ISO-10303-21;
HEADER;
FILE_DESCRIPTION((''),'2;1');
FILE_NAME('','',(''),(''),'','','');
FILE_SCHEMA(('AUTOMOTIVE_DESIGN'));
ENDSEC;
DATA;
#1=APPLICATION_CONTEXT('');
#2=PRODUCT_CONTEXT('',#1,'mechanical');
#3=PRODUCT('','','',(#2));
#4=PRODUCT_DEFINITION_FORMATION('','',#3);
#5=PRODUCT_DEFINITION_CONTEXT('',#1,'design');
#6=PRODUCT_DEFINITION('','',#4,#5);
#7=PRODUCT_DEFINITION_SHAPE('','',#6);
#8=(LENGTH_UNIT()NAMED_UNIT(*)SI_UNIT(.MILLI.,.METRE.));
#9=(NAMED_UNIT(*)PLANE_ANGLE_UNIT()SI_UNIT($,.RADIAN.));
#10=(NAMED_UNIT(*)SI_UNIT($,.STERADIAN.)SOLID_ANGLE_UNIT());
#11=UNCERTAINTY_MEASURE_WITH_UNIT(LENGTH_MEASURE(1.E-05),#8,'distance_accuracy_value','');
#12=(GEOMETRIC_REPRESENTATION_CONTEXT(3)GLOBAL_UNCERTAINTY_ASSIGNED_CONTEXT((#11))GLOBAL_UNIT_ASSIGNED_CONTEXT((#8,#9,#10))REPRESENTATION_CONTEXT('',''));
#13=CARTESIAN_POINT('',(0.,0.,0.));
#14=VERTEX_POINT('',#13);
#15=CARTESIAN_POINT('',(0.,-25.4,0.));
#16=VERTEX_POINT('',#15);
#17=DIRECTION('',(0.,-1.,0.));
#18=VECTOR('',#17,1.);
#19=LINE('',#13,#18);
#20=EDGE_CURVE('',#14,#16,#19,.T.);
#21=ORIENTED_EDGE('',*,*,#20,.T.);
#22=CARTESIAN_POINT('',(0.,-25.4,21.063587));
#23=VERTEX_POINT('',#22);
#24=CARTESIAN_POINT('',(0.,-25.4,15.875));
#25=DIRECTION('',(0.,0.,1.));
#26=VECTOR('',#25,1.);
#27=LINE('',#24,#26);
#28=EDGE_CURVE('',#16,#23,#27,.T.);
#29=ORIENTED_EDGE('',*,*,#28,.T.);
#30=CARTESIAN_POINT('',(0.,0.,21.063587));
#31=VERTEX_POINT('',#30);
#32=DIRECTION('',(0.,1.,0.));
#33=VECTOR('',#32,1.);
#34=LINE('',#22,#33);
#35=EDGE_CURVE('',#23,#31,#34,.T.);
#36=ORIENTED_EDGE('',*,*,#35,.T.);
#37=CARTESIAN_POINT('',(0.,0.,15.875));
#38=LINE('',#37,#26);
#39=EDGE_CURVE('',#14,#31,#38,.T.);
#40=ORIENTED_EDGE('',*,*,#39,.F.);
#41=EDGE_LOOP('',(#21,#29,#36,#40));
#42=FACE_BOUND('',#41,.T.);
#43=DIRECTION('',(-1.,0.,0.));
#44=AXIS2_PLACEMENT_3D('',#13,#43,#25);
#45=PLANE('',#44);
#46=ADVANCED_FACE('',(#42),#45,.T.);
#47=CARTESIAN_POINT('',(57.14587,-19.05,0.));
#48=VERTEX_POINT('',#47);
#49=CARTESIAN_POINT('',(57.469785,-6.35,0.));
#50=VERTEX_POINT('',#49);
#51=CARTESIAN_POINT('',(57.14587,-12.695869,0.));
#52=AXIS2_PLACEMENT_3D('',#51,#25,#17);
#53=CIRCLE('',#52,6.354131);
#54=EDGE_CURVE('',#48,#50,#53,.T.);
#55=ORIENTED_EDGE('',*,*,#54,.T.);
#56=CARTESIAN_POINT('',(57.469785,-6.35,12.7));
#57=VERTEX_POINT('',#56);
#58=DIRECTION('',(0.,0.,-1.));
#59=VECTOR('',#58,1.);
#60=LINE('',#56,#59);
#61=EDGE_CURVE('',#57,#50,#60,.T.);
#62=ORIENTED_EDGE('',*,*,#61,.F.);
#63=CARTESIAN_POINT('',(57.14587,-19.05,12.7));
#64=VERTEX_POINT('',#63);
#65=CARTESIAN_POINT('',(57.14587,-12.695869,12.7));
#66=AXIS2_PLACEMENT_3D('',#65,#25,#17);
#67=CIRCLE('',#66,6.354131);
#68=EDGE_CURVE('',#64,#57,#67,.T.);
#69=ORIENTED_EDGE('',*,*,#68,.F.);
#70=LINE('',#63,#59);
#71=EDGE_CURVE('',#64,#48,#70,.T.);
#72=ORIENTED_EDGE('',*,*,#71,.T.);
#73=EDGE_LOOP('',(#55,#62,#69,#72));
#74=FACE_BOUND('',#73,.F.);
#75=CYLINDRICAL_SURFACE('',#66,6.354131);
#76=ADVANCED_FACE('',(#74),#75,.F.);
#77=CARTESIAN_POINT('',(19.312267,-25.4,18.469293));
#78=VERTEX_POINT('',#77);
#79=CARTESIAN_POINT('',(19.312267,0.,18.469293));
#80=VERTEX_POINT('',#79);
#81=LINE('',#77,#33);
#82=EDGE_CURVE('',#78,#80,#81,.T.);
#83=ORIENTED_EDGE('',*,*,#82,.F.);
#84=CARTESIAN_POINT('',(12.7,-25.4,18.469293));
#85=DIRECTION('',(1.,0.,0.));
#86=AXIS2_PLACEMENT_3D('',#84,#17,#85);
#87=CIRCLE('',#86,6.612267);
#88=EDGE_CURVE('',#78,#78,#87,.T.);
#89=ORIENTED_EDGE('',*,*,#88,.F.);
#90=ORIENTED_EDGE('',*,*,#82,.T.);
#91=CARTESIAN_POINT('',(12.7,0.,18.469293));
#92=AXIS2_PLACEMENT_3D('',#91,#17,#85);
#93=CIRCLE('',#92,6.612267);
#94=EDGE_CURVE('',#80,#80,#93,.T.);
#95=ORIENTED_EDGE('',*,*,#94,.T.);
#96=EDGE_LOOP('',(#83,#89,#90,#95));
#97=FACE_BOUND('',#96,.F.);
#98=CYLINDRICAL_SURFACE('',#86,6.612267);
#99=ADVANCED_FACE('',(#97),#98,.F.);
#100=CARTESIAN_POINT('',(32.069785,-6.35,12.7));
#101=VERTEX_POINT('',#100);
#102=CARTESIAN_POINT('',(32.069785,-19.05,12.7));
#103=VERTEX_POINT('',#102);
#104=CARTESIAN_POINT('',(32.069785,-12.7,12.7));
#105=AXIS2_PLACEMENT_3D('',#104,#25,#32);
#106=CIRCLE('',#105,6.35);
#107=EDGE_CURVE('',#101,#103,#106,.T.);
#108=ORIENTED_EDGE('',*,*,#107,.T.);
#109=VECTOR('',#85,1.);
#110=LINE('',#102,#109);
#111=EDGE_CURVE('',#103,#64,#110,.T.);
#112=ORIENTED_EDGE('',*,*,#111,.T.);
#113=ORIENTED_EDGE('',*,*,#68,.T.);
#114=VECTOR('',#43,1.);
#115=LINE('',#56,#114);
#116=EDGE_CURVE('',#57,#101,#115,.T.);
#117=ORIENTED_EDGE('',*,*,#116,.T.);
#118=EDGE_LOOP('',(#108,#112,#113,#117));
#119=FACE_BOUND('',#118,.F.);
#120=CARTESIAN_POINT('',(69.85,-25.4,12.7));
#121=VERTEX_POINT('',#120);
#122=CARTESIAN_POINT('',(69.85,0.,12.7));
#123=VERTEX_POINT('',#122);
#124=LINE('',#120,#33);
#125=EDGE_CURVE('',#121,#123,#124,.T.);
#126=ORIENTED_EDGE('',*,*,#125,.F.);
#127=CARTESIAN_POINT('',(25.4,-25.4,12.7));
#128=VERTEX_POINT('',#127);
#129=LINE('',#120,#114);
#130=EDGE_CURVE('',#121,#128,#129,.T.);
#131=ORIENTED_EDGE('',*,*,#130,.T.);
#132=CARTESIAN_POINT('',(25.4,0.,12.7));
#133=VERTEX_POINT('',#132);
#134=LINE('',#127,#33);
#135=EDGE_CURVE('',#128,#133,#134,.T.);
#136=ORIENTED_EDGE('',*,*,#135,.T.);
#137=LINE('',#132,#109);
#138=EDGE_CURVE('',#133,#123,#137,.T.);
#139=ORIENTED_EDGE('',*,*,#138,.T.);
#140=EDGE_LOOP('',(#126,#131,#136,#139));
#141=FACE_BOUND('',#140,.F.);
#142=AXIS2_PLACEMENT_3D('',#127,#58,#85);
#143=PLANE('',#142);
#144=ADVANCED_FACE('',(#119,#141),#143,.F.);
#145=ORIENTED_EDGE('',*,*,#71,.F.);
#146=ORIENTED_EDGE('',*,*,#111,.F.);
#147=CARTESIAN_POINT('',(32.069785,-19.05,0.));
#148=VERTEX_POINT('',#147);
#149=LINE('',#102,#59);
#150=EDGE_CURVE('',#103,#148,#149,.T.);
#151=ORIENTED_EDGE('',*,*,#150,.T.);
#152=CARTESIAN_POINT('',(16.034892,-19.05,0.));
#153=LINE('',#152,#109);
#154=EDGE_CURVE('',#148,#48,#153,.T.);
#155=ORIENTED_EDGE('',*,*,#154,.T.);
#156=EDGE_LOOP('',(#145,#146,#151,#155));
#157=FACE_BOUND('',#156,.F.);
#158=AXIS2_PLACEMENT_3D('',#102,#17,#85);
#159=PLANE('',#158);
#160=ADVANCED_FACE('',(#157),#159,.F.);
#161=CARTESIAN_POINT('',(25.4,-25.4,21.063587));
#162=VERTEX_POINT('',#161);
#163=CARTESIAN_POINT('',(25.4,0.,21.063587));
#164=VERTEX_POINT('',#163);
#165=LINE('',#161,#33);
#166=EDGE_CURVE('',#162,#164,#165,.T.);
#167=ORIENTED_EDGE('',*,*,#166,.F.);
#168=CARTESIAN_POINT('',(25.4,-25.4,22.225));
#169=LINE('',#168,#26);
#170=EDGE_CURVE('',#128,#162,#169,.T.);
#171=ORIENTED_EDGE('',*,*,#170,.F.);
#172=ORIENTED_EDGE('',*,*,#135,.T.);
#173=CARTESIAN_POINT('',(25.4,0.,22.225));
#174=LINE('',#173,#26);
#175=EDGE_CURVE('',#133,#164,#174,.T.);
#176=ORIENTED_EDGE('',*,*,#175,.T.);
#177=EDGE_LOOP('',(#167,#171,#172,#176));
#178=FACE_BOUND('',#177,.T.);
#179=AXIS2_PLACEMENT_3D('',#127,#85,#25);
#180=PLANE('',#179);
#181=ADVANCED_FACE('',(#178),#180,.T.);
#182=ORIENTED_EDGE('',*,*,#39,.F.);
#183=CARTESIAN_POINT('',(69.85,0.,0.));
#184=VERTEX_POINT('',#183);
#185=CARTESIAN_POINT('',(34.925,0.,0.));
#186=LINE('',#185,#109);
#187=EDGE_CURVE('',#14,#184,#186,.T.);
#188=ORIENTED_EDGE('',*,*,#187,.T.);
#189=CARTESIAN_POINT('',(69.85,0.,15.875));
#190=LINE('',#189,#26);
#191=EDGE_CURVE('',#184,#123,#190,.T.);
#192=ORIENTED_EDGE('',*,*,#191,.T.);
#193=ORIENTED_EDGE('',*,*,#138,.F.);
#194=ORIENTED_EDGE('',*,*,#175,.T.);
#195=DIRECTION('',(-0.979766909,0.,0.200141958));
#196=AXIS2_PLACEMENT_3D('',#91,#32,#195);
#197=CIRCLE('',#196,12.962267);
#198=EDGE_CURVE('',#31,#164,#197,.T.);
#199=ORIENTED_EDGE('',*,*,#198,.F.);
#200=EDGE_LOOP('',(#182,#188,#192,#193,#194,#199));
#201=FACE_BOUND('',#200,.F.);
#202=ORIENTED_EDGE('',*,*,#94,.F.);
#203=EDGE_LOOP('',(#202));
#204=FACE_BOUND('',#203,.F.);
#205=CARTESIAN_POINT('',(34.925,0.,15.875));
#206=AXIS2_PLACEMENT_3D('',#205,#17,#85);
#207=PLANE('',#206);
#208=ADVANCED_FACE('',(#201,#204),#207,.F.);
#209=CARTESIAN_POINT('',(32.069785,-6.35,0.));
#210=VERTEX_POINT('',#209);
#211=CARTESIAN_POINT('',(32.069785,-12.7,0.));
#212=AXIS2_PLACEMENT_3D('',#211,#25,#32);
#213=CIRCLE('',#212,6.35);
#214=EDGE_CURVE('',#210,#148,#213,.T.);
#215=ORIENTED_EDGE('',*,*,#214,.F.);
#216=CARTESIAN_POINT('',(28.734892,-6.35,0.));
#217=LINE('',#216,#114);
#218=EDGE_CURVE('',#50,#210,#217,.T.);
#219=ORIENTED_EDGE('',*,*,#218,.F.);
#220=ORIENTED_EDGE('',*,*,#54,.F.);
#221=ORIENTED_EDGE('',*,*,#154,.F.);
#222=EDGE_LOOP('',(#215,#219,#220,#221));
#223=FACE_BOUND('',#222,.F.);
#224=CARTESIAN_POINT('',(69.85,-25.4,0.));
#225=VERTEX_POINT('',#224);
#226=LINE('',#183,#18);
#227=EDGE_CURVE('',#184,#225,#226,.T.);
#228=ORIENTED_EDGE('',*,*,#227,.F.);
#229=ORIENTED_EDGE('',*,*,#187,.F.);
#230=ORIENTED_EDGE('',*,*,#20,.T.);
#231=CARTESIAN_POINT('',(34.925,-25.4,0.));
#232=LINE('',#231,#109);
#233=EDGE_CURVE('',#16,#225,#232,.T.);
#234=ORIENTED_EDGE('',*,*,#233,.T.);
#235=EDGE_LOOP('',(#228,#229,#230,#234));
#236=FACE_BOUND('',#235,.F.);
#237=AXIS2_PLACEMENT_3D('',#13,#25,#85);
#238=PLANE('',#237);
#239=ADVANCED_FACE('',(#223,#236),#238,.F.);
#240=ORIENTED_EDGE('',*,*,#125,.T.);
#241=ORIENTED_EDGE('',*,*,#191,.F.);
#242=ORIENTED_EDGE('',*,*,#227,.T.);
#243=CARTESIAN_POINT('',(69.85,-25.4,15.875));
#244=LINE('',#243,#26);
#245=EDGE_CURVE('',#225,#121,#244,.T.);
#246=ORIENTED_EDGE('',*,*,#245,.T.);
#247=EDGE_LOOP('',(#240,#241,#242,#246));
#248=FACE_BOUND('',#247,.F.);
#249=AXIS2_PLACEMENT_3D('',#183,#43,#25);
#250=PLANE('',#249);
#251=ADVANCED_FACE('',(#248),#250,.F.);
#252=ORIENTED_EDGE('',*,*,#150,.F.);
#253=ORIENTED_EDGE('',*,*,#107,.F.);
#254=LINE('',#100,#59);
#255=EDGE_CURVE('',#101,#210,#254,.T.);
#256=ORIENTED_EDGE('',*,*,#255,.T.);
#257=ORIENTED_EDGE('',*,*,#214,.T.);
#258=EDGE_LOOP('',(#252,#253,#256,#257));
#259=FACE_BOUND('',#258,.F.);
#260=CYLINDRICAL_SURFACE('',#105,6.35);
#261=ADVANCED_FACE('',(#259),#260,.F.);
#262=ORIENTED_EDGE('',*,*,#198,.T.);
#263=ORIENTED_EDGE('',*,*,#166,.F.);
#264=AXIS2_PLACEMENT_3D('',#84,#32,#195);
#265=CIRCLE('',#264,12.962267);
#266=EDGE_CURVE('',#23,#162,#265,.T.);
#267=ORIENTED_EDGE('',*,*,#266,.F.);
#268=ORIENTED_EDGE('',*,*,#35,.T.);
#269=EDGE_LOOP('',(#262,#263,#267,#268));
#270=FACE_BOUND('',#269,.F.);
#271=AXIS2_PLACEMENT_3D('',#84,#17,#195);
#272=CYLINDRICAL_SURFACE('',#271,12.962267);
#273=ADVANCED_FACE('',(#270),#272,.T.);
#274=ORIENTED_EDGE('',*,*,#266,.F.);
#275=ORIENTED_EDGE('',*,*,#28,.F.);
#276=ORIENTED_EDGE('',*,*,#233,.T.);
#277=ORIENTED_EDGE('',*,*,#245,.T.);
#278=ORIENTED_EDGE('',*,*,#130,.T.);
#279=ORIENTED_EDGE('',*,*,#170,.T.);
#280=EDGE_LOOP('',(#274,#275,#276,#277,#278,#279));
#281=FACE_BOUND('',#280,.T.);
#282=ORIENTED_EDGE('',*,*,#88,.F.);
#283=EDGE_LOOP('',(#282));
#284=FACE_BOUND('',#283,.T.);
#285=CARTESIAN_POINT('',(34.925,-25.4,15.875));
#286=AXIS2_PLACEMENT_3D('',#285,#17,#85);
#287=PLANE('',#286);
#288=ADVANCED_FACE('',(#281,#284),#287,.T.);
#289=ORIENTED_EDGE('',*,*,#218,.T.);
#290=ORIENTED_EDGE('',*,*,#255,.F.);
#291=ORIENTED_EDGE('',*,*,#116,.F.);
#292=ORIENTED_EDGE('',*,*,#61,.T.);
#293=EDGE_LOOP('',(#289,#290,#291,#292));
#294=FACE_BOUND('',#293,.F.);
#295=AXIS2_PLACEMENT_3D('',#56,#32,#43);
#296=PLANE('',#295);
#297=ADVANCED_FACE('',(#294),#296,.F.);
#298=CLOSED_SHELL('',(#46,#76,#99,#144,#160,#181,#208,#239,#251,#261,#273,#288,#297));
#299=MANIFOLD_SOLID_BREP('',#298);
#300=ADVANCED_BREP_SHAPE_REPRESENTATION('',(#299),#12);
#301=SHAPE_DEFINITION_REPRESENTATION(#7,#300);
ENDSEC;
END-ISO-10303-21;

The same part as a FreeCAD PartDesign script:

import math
import FreeCAD as App
import Part
import Sketcher
from FreeCAD import Vector
Q = App.Units.Quantity


def add_polygon(sketch, points):
    """Adds a closed chain of lines whose ends are joined by coincident constraints."""
    first, n = sketch.GeometryCount, len(points)
    for a, b in zip(points, points[1:] + points[:1]):
        sketch.addGeometry(Part.LineSegment(App.Vector(*a, 0), App.Vector(*b, 0)), False)
    for i in range(n):
        sketch.addConstraint(Sketcher.Constraint("Coincident", first + i, 2, first + (i + 1) % n, 1))

doc = App.newDocument("Part")
params = doc.addObject("Spreadsheet::Sheet", "Params")
for row, (alias, value) in enumerate([
    ("sketch1_width", "2.75 in"),
    ("sketch1_height", "1.25 in"),
    ("pad1_length", "1 in"),
    ("sketch2_width", "1.75 in"),
    ("sketch2_height", "0.75 in"),
    ("pocket1_length", "1 in"),
    ("sketch3_width", "1 in"),
    ("pocket2_length", "1 in"),
    ("pocket3_length", "1 in"),
    ("sketch5_width", "1 in"),
    ("sketch5_radius", "0.25 in"),
    ("pocket4_length", "1 in"),
    ("sketch6_height", "1 in"),
    ("pocket5_length", "1 in"),
], start=1):
    params.set(f"A{row}", alias)
    params.set(f"B{row}", "=" + value)
    params.setAlias(f"B{row}", alias)

body = doc.addObject("PartDesign::Body", "Body")

sketch1 = body.newObject("Sketcher::SketchObject", "Sketch")
sketch1.AttachmentSupport = (doc.getObject("XZ_Plane"), [""])
sketch1.MapMode = "FlatFace"
add_polygon(sketch1, [(0, 32), (0, 0), (70, 0), (70, 32)])
sketch1.addConstraint([
    Sketcher.Constraint("Vertical", 0),
    Sketcher.Constraint("Horizontal", 1),
    Sketcher.Constraint("Vertical", 2),
    Sketcher.Constraint("Horizontal", 3),
    Sketcher.Constraint("Coincident", 0, 2, -1, 1),
    Sketcher.Constraint("DistanceX", 1, 1, 1, 2, Q("2.75 in")),
    Sketcher.Constraint("DistanceY", 0, 2, 0, 1, Q("1.25 in")),
])
sketch1.setExpression("Constraints[9]", "Params.sketch1_width")
sketch1.setExpression("Constraints[10]", "Params.sketch1_height")
pad1 = body.newObject("PartDesign::Pad", "Pad")
pad1.Profile = sketch1
pad1.setExpression("Length", "Params.pad1_length")

sketch2 = body.newObject("Sketcher::SketchObject", "Sketch001")
sketch2.AttachmentSupport = (doc.getObject("XZ_Plane"), [""])
sketch2.MapMode = "FlatFace"
sketch2.AttachmentOffset = App.Placement(Vector(0, 0, 1 * 25.4), App.Rotation())
add_polygon(sketch2, [(25, 32), (25, 13), (70, 13), (70, 32)])
sketch2.addConstraint([
    Sketcher.Constraint("Vertical", 0),
    Sketcher.Constraint("Horizontal", 1),
    Sketcher.Constraint("Vertical", 2),
    Sketcher.Constraint("Horizontal", 3),
    Sketcher.Constraint("DistanceX", -1, 1, 0, 2, Q("1 in")),
    Sketcher.Constraint("DistanceX", 1, 1, 1, 2, Q("1.75 in")),
    Sketcher.Constraint("DistanceY", 0, 2, 0, 1, Q("0.75 in")),
    Sketcher.Constraint("DistanceY", -1, 1, 0, 2, Q("0.5 in")),
])
sketch2.setExpression("Constraints[9]", "Params.sketch2_width")
sketch2.setExpression("Constraints[10]", "Params.sketch2_height")
pocket1 = body.newObject("PartDesign::Pocket", "Pocket")
pocket1.Profile = sketch2
pocket1.setExpression("Length", "Params.pocket1_length")

sketch3 = body.newObject("Sketcher::SketchObject", "Sketch002")
sketch3.AttachmentSupport = (doc.getObject("XZ_Plane"), [""])
sketch3.MapMode = "FlatFace"
sketch3.AttachmentOffset = App.Placement(Vector(0, 0, 1 * 25.4), App.Rotation())
sketch3.addGeometry([
    Part.ArcOfCircle(Part.Circle(Vector(13, 18, 0), Vector(0, 0, 1), 13), math.radians(12), math.radians(168)),
    Part.LineSegment(Vector(25, 21, 0), Vector(25, 32, 0)),
    Part.LineSegment(Vector(25, 32, 0), Vector(0, 32, 0)),
    Part.LineSegment(Vector(0, 32, 0), Vector(0, 21, 0)),
], False)
sketch3.addConstraint([
    Sketcher.Constraint("Coincident", 0, 1, 1, 1),
    Sketcher.Constraint("Coincident", 1, 2, 2, 1),
    Sketcher.Constraint("Coincident", 2, 2, 3, 1),
    Sketcher.Constraint("Coincident", 3, 2, 0, 2),
    Sketcher.Constraint("Vertical", 1),
    Sketcher.Constraint("Horizontal", 2),
    Sketcher.Constraint("Vertical", 3),
    Sketcher.Constraint("PointOnObject", 2, 2, -2),
    Sketcher.Constraint("Horizontal", 0, 1, 3, 2),
    Sketcher.Constraint("DistanceX", 2, 2, 2, 1, Q("1 in")),
    Sketcher.Constraint("DistanceY", -1, 1, 1, 2, Q("1.25 in")),
    Sketcher.Constraint("Radius", 0, 12.962267),
    Sketcher.Constraint("DistanceY", 1, 1, 1, 2, 10.686413),
])
sketch3.setExpression("Constraints[9]", "Params.sketch3_width")
pocket2 = body.newObject("PartDesign::Pocket", "Pocket001")
pocket2.Profile = sketch3
pocket2.setExpression("Length", "Params.pocket2_length")

sketch4 = body.newObject("Sketcher::SketchObject", "Sketch003")
sketch4.AttachmentSupport = (doc.getObject("XZ_Plane"), [""])
sketch4.MapMode = "FlatFace"
sketch4.AttachmentOffset = App.Placement(Vector(0, 0, 1 * 25.4), App.Rotation())
sketch4.addGeometry(Part.Circle(Vector(13, 18, 0), Vector(0, 0, 1), 7), False)
sketch4.addConstraint([
    Sketcher.Constraint("DistanceX", -1, 1, 0, 3, Q("0.5 in")),
    Sketcher.Constraint("Diameter", 0, 13.224533),
    Sketcher.Constraint("DistanceY", -1, 1, 0, 3, 18.469293),
])
pocket3 = body.newObject("PartDesign::Pocket", "Pocket002")
pocket3.Profile = sketch4
pocket3.setExpression("Length", "Params.pocket3_length")

sketch5 = body.newObject("Sketcher::SketchObject", "Sketch004")
sketch5.AttachmentSupport = (doc.getObject("XY_Plane"), [""])
sketch5.MapMode = "FlatFace"
sketch5.AttachmentOffset = App.Placement(Vector(0, 0, 0.5 * 25.4), App.Rotation())
sketch5.addGeometry([
    Part.LineSegment(Vector(57, -6, 0), Vector(32, -6, 0)),
    Part.ArcOfCircle(Part.Circle(Vector(32, -13, 0), Vector(0, 0, 1), 6), math.radians(90), math.radians(270)),
    Part.LineSegment(Vector(32, -19, 0), Vector(57, -19, 0)),
    Part.ArcOfCircle(Part.Circle(Vector(57, -13, 0), Vector(0, 0, 1), 6), math.radians(-90), math.radians(87)),
], False)
sketch5.addConstraint([
    Sketcher.Constraint("Tangent", 0, 2, 1, 1),
    Sketcher.Constraint("Tangent", 1, 2, 2, 1),
    Sketcher.Constraint("Tangent", 2, 2, 3, 1),
    Sketcher.Constraint("Coincident", 3, 2, 0, 1),
    Sketcher.Constraint("Horizontal", 0),
    Sketcher.Constraint("Horizontal", 2),
    Sketcher.Constraint("DistanceX", 0, 2, 0, 1, Q("1 in")),
    Sketcher.Constraint("Radius", 1, Q("0.25 in")),
    Sketcher.Constraint("DistanceY", 1, 3, -1, 1, Q("0.5 in")),
    Sketcher.Constraint("Radius", 3, 6.354131),
    Sketcher.Constraint("DistanceX", -1, 1, 3, 3, 57.14587),
])
sketch5.setExpression("Constraints[6]", "Params.sketch5_width")
sketch5.setExpression("Constraints[7]", "Params.sketch5_radius")
pocket4 = body.newObject("PartDesign::Pocket", "Pocket003")
pocket4.Profile = sketch5
pocket4.setExpression("Length", "Params.pocket4_length")

sketch6 = body.newObject("Sketcher::SketchObject", "Sketch005")
sketch6.AttachmentSupport = (doc.getObject("XY_Plane"), [""])
sketch6.MapMode = "FlatFace"
sketch6.AttachmentOffset = App.Placement(Vector(0, 0, 0.5 * 25.4), App.Rotation())
sketch6.addGeometry([
    Part.ArcOfCircle(Part.Circle(Vector(56, -13, 0), Vector(0, 0, 1), 14), math.radians(-62), math.radians(76)),
    Part.LineSegment(Vector(63, -25, 0), Vector(70, -25, 0)),
    Part.LineSegment(Vector(70, -25, 0), Vector(70, 0, 0)),
    Part.LineSegment(Vector(70, 0, 0), Vector(59, 0, 0)),
], False)
sketch6.addConstraint([
    Sketcher.Constraint("Coincident", 0, 1, 1, 1),
    Sketcher.Constraint("Coincident", 1, 2, 2, 1),
    Sketcher.Constraint("Coincident", 2, 2, 3, 1),
    Sketcher.Constraint("Coincident", 3, 2, 0, 2),
    Sketcher.Constraint("Horizontal", 1),
    Sketcher.Constraint("Vertical", 2),
    Sketcher.Constraint("Horizontal", 3),
    Sketcher.Constraint("PointOnObject", 2, 2, -1),
    Sketcher.Constraint("DistanceY", 2, 1, 2, 2, Q("1 in")),
    Sketcher.Constraint("DistanceX", -1, 1, 1, 2, Q("2.75 in")),
    Sketcher.Constraint("Radius", 0, 13.684004),
    Sketcher.Constraint("DistanceX", 1, 1, 1, 2, 7.327678),
    Sketcher.Constraint("DistanceX", 3, 2, 3, 1, 10.422847),
])
sketch6.setExpression("Constraints[8]", "Params.sketch6_height")
pocket5 = body.newObject("PartDesign::Pocket", "Pocket004")
pocket5.Profile = sketch6
pocket5.setExpression("Length", "Params.pocket5_length")
pocket5.Reversed = True

doc.recompute()
